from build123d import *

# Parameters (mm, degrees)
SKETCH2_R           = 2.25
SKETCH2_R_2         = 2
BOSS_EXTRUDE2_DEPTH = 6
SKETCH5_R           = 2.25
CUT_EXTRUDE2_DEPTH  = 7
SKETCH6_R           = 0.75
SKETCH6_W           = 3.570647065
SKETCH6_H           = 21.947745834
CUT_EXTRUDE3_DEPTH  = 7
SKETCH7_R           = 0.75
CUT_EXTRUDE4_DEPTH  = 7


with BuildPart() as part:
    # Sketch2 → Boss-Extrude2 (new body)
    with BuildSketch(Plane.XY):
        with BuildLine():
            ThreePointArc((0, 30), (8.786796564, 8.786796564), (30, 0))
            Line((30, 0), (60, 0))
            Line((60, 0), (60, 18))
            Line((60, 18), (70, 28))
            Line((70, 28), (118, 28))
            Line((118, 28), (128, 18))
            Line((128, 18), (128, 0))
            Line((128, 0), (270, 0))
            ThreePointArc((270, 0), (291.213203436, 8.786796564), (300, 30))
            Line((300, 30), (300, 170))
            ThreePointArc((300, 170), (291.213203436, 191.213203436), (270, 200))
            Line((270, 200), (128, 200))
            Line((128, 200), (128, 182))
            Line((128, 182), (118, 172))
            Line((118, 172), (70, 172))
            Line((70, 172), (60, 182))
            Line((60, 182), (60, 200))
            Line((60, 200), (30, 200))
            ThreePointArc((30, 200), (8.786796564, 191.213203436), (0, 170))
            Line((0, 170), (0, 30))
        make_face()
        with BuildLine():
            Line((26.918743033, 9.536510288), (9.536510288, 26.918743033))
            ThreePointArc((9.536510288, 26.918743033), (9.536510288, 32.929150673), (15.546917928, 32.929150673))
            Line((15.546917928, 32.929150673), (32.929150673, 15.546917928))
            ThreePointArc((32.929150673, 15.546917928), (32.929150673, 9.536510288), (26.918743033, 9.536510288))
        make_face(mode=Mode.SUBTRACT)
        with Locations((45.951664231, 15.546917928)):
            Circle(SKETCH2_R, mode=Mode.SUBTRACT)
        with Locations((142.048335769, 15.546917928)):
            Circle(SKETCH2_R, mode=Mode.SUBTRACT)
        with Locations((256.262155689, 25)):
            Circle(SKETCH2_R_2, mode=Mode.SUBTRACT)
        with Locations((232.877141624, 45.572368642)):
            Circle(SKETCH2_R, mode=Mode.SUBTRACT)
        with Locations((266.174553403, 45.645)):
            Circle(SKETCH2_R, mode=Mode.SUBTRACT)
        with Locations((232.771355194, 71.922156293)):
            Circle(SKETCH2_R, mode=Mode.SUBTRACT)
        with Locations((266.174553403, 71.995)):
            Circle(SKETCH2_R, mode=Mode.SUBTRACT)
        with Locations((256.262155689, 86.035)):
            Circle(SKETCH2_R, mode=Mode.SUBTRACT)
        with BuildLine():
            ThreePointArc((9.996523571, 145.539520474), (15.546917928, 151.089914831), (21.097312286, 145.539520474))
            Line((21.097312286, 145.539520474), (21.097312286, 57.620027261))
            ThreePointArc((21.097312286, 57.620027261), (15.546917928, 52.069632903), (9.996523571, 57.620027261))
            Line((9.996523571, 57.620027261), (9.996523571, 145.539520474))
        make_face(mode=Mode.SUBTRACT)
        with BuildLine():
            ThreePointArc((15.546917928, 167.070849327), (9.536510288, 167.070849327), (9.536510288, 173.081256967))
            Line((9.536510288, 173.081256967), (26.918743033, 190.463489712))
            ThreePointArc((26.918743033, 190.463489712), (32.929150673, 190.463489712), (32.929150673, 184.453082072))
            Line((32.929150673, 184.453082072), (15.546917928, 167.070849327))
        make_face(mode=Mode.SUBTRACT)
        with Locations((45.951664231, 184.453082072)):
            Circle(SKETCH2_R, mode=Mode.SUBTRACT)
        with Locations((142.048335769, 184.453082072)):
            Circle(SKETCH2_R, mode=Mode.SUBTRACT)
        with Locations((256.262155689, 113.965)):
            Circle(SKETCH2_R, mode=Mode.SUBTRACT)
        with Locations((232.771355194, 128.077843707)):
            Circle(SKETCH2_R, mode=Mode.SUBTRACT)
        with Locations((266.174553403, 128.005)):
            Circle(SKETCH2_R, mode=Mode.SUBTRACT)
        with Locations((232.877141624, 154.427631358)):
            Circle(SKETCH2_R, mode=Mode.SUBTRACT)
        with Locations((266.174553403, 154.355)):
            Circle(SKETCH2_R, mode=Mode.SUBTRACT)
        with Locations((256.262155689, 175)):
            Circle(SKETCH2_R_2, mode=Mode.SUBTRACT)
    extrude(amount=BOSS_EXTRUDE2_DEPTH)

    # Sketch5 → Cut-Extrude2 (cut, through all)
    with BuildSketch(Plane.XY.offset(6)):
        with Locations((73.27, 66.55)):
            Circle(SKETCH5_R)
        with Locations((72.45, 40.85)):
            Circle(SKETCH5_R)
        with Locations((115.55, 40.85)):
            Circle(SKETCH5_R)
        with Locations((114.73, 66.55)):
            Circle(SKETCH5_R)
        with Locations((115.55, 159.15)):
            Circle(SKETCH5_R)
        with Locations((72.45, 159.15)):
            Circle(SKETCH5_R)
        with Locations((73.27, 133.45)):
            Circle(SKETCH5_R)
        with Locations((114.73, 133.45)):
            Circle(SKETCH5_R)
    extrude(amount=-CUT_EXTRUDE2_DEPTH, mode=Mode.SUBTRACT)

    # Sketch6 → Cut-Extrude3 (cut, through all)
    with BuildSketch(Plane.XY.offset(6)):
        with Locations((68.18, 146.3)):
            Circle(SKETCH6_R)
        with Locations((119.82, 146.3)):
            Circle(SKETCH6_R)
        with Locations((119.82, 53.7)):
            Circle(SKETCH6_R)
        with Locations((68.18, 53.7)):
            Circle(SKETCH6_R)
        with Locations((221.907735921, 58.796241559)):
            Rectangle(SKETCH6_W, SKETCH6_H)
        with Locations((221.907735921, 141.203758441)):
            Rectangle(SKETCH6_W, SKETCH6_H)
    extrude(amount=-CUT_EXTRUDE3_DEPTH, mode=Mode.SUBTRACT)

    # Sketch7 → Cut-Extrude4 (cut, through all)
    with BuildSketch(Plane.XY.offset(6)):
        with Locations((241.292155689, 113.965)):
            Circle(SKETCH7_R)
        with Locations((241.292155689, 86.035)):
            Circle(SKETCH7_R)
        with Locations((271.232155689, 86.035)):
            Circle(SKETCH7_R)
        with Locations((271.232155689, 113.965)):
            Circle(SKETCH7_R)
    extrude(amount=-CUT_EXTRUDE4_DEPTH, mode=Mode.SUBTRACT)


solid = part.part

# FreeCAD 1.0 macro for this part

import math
import FreeCAD as App
import Part
import Sketcher


def add_polygon(sketch, points):
    """Adds a closed chain of lines whose ends are joined by coincident constraints."""
    first, n = sketch.GeometryCount, len(points)
    for a, b in zip(points, points[1:] + points[:1]):
        sketch.addGeometry(Part.LineSegment(App.Vector(*a, 0), App.Vector(*b, 0)), False)
    for i in range(n):
        sketch.addConstraint(Sketcher.Constraint("Coincident", first + i, 2, first + (i + 1) % n, 1))

doc = App.newDocument("Part")
body = doc.addObject("PartDesign::Body", "Body")

# Sketch on XY plane
sketch1 = body.newObject("Sketcher::SketchObject", "Sketch")
sketch1.AttachmentSupport = (doc.getObject("XY_Plane"), [""])
sketch1.MapMode = "FlatFace"
sketch1.addGeometry([
    Part.ArcOfCircle(Part.Circle(App.Vector(30, 30, 0), App.Vector(0, 0, 1), 30), math.radians(180), math.radians(270)),  # 0
    Part.LineSegment(App.Vector(30, 0, 0), App.Vector(60, 0, 0)),  # 1
    Part.LineSegment(App.Vector(60, 0, 0), App.Vector(60, 18, 0)),  # 2
    Part.LineSegment(App.Vector(60, 18, 0), App.Vector(70, 28, 0)),  # 3
    Part.LineSegment(App.Vector(70, 28, 0), App.Vector(118, 28, 0)),  # 4
    Part.LineSegment(App.Vector(118, 28, 0), App.Vector(128, 18, 0)),  # 5
    Part.LineSegment(App.Vector(128, 18, 0), App.Vector(128, 0, 0)),  # 6
    Part.LineSegment(App.Vector(128, 0, 0), App.Vector(270, 0, 0)),  # 7
    Part.ArcOfCircle(Part.Circle(App.Vector(270, 30, 0), App.Vector(0, 0, 1), 30), math.radians(-90), math.radians(0)),  # 8
    Part.LineSegment(App.Vector(300, 30, 0), App.Vector(300, 170, 0)),  # 9
    Part.ArcOfCircle(Part.Circle(App.Vector(270, 170, 0), App.Vector(0, 0, 1), 30), math.radians(0), math.radians(90)),  # 10
    Part.LineSegment(App.Vector(270, 200, 0), App.Vector(128, 200, 0)),  # 11
    Part.LineSegment(App.Vector(128, 200, 0), App.Vector(128, 182, 0)),  # 12
    Part.LineSegment(App.Vector(128, 182, 0), App.Vector(118, 172, 0)),  # 13
    Part.LineSegment(App.Vector(118, 172, 0), App.Vector(70, 172, 0)),  # 14
    Part.LineSegment(App.Vector(70, 172, 0), App.Vector(60, 182, 0)),  # 15
    Part.LineSegment(App.Vector(60, 182, 0), App.Vector(60, 200, 0)),  # 16
    Part.LineSegment(App.Vector(60, 200, 0), App.Vector(30, 200, 0)),  # 17
    Part.ArcOfCircle(Part.Circle(App.Vector(30, 170, 0), App.Vector(0, 0, 1), 30), math.radians(90), math.radians(180)),  # 18
    Part.LineSegment(App.Vector(0, 170, 0), App.Vector(0, 30, 0)),  # 19
    Part.ArcOfCircle(Part.Circle(App.Vector(29.9, 12.5, 0), App.Vector(0, 0, 1), 4.2), math.radians(-135), math.radians(45)),  # 20
    Part.LineSegment(App.Vector(26.9, 9.5, 0), App.Vector(9.5, 26.9, 0)),  # 21
    Part.ArcOfCircle(Part.Circle(App.Vector(12.5, 29.9, 0), App.Vector(0, 0, 1), 4.2), math.radians(45), math.radians(225)),  # 22
    Part.LineSegment(App.Vector(15.5, 32.9, 0), App.Vector(32.9, 15.5, 0)),  # 23
    Part.Circle(App.Vector(46, 15.5, 0), App.Vector(0, 0, 1), 2.2),  # 24
    Part.Circle(App.Vector(142, 15.5, 0), App.Vector(0, 0, 1), 2.2),  # 25
    Part.Circle(App.Vector(256.3, 25, 0), App.Vector(0, 0, 1), 2),  # 26
    Part.Circle(App.Vector(232.9, 45.6, 0), App.Vector(0, 0, 1), 2.2),  # 27
    Part.Circle(App.Vector(266.2, 45.6, 0), App.Vector(0, 0, 1), 2.2),  # 28
    Part.Circle(App.Vector(232.8, 71.9, 0), App.Vector(0, 0, 1), 2.2),  # 29
    Part.Circle(App.Vector(266.2, 72, 0), App.Vector(0, 0, 1), 2.2),  # 30
    Part.Circle(App.Vector(256.3, 86, 0), App.Vector(0, 0, 1), 2.2),  # 31
    Part.LineSegment(App.Vector(10, 57.6, 0), App.Vector(10, 145.5, 0)),  # 32
    Part.ArcOfCircle(Part.Circle(App.Vector(15.5, 145.5, 0), App.Vector(0, 0, 1), 5.6), math.radians(0), math.radians(180)),  # 33
    Part.LineSegment(App.Vector(21.1, 145.5, 0), App.Vector(21.1, 57.6, 0)),  # 34
    Part.ArcOfCircle(Part.Circle(App.Vector(15.5, 57.6, 0), App.Vector(0, 0, 1), 5.6), math.radians(180), math.radians(360)),  # 35
    Part.LineSegment(App.Vector(32.9, 184.5, 0), App.Vector(15.5, 167.1, 0)),  # 36
    Part.ArcOfCircle(Part.Circle(App.Vector(12.5, 170.1, 0), App.Vector(0, 0, 1), 4.2), math.radians(135), math.radians(315)),  # 37
    Part.LineSegment(App.Vector(9.5, 173.1, 0), App.Vector(26.9, 190.5, 0)),  # 38
    Part.ArcOfCircle(Part.Circle(App.Vector(29.9, 187.5, 0), App.Vector(0, 0, 1), 4.2), math.radians(-45), math.radians(135)),  # 39
    Part.Circle(App.Vector(46, 184.5, 0), App.Vector(0, 0, 1), 2.2),  # 40
    Part.Circle(App.Vector(256.3, 114, 0), App.Vector(0, 0, 1), 2.2),  # 41
    Part.Circle(App.Vector(232.8, 128.1, 0), App.Vector(0, 0, 1), 2.2),  # 42
    Part.Circle(App.Vector(266.2, 128, 0), App.Vector(0, 0, 1), 2.2),  # 43
    Part.Circle(App.Vector(142, 184.5, 0), App.Vector(0, 0, 1), 2.2),  # 44
    Part.Circle(App.Vector(232.9, 154.4, 0), App.Vector(0, 0, 1), 2.2),  # 45
    Part.Circle(App.Vector(266.2, 154.4, 0), App.Vector(0, 0, 1), 2.2),  # 46
    Part.Circle(App.Vector(256.3, 175, 0), App.Vector(0, 0, 1), 2),  # 47
], False)
sketch1.addConstraint([
    Sketcher.Constraint("Tangent", 0, 2, 1, 1),
    Sketcher.Constraint("Coincident", 1, 2, 2, 1),
    Sketcher.Constraint("Coincident", 2, 2, 3, 1),
    Sketcher.Constraint("Coincident", 3, 2, 4, 1),
    Sketcher.Constraint("Coincident", 4, 2, 5, 1),
    Sketcher.Constraint("Coincident", 5, 2, 6, 1),
    Sketcher.Constraint("Coincident", 6, 2, 7, 1),
    Sketcher.Constraint("Tangent", 7, 2, 8, 1),
    Sketcher.Constraint("Tangent", 8, 2, 9, 1),
    Sketcher.Constraint("Tangent", 9, 2, 10, 1),
    Sketcher.Constraint("Tangent", 10, 2, 11, 1),
    Sketcher.Constraint("Coincident", 11, 2, 12, 1),
    Sketcher.Constraint("Coincident", 12, 2, 13, 1),
    Sketcher.Constraint("Coincident", 13, 2, 14, 1),
    Sketcher.Constraint("Coincident", 14, 2, 15, 1),
    Sketcher.Constraint("Coincident", 15, 2, 16, 1),
    Sketcher.Constraint("Coincident", 16, 2, 17, 1),
    Sketcher.Constraint("Tangent", 17, 2, 18, 1),
    Sketcher.Constraint("Tangent", 18, 2, 19, 1),
    Sketcher.Constraint("Tangent", 19, 2, 0, 1),
    Sketcher.Constraint("Tangent", 20, 1, 21, 1),
    Sketcher.Constraint("Tangent", 21, 2, 22, 2),
    Sketcher.Constraint("Tangent", 22, 1, 23, 1),
    Sketcher.Constraint("Tangent", 23, 2, 20, 2),
    Sketcher.Constraint("Tangent", 32, 2, 33, 2),
    Sketcher.Constraint("Tangent", 33, 1, 34, 1),
    Sketcher.Constraint("Tangent", 34, 2, 35, 2),
    Sketcher.Constraint("Tangent", 35, 1, 32, 1),
    Sketcher.Constraint("Tangent", 36, 2, 37, 2),
    Sketcher.Constraint("Tangent", 37, 1, 38, 1),
    Sketcher.Constraint("Tangent", 38, 2, 39, 2),
    Sketcher.Constraint("Tangent", 39, 1, 36, 1),
    Sketcher.Constraint("Horizontal", 1),
    Sketcher.Constraint("Vertical", 2),
    Sketcher.Constraint("Horizontal", 4),
    Sketcher.Constraint("Vertical", 6),
    Sketcher.Constraint("Horizontal", 7),
    Sketcher.Constraint("Vertical", 9),
    Sketcher.Constraint("Horizontal", 11),
    Sketcher.Constraint("Vertical", 12),
    Sketcher.Constraint("Horizontal", 14),
    Sketcher.Constraint("Vertical", 16),
    Sketcher.Constraint("Horizontal", 17),
    Sketcher.Constraint("Vertical", 19),
    Sketcher.Constraint("Vertical", 32),
    Sketcher.Constraint("Vertical", 34),
    Sketcher.Constraint("Equal", 0, 8),
    Sketcher.Constraint("Equal", 8, 10),
    Sketcher.Constraint("Equal", 10, 18),
    Sketcher.Constraint("Equal", 20, 22),
    Sketcher.Constraint("Equal", 24, 25),
    Sketcher.Constraint("Equal", 25, 27),
    Sketcher.Constraint("Equal", 27, 28),
    Sketcher.Constraint("Equal", 28, 29),
    Sketcher.Constraint("Equal", 29, 30),
    Sketcher.Constraint("Equal", 30, 31),
    Sketcher.Constraint("Equal", 22, 37),
    Sketcher.Constraint("Equal", 37, 39),
    Sketcher.Constraint("Equal", 31, 40),
    Sketcher.Constraint("Equal", 40, 41),
    Sketcher.Constraint("Equal", 41, 42),
    Sketcher.Constraint("Equal", 42, 43),
    Sketcher.Constraint("Equal", 43, 44),
    Sketcher.Constraint("Equal", 44, 45),
    Sketcher.Constraint("Equal", 45, 46),
    Sketcher.Constraint("Equal", 26, 47),
    Sketcher.Constraint("PointOnObject", 0, 2, -1),
    Sketcher.Constraint("PointOnObject", 6, 2, -1),
    Sketcher.Constraint("PointOnObject", 18, 2, -2),
    Sketcher.Constraint("Perpendicular", 3, 5),
    Sketcher.Constraint("Perpendicular", 5, 13),
    Sketcher.Constraint("Perpendicular", 13, 15),
    Sketcher.Constraint("Parallel", 15, 21),
    Sketcher.Constraint("Perpendicular", 23, 36),
    Sketcher.Constraint("Horizontal", 10, 3, 18, 3),
    Sketcher.Constraint("Horizontal", 24, 3, 25, 3),
    Sketcher.Constraint("Horizontal", 40, 3, 44, 3),
    Sketcher.Constraint("Horizontal", 2, 2, 5, 2),
    Sketcher.Constraint("Horizontal", 12, 2, 15, 2),
    Sketcher.Constraint("Horizontal", 25, 3, 23, 2),
    Sketcher.Constraint("Horizontal", 44, 3, 39, 1),
    Sketcher.Constraint("Vertical", 28, 3, 30, 3),
    Sketcher.Constraint("Vertical", 26, 3, 31, 3),
    Sketcher.Constraint("Vertical", 22, 3, 37, 3),
    Sketcher.Constraint("Vertical", 20, 3, 39, 3),
    Sketcher.Constraint("Vertical", 24, 3, 40, 3),
    Sketcher.Constraint("Vertical", 31, 3, 41, 3),
    Sketcher.Constraint("Vertical", 29, 3, 42, 3),
    Sketcher.Constraint("Vertical", 30, 3, 43, 3),
    Sketcher.Constraint("Vertical", 25, 3, 44, 3),
    Sketcher.Constraint("Vertical", 27, 3, 45, 3),
    Sketcher.Constraint("Vertical", 43, 3, 46, 3),
    Sketcher.Constraint("Vertical", 41, 3, 47, 3),
    Sketcher.Constraint("Vertical", 6, 2, 11, 2),
    Sketcher.Constraint("Vertical", 4, 2, 13, 2),
    Sketcher.Constraint("Vertical", 3, 2, 14, 2),
    Sketcher.Constraint("Vertical", 2, 2, 15, 2),
    Sketcher.Constraint("Vertical", 35, 3, 22, 1),
    Sketcher.Constraint("Equal", 6, 12),
    Sketcher.Constraint("Diameter", 26, 4.0),
    Sketcher.Constraint("Radius", 0, 30.0),
    Sketcher.Constraint("Diameter", 24, 4.5),
    Sketcher.Constraint("DistanceX", 1, 1, 1, 2, 30.0),
    Sketcher.Constraint("DistanceX", 4, 1, 4, 2, 48.0),
    Sketcher.Constraint("DistanceX", 7, 1, 7, 2, 142.0),
    Sketcher.Constraint("DistanceY", 2, 1, 2, 2, 18.0),
    Sketcher.Constraint("DistanceY", 9, 1, 9, 2, 140.0),
    Sketcher.Constraint("Radius", 20, 4.25),
    Sketcher.Constraint("DistanceX", -1, 1, 8, 3, 270.0),
    Sketcher.Constraint("DistanceY", -1, 1, 26, 3, 25.0),
    Sketcher.Constraint("DistanceY", -1, 1, 47, 3, 175.0),
    Sketcher.Constraint("DistanceY", 28, 3, 30, 3, 26.35),
    Sketcher.Constraint("DistanceY", 30, 3, 31, 3, 14.04),
    Sketcher.Constraint("DistanceY", 31, 3, 41, 3, 27.93),
    Sketcher.Constraint("DistanceY", 41, 3, 43, 3, 14.04),
    Sketcher.Constraint("DistanceY", 43, 3, 46, 3, 26.35),
    Sketcher.Constraint("DistanceY", -1, 1, 28, 3, 45.645),
    Sketcher.Constraint("Radius", 33, 5.550394),
    Sketcher.Constraint("DistanceX", 29, 3, 28, 3, 33.403198),
    Sketcher.Constraint("DistanceX", 29, 3, 26, 3, 23.4908),
    Sketcher.Constraint("Distance", 21, 24.582189),
    Sketcher.Constraint("DistanceY", 32, 1, 32, 2, 87.919493),
    Sketcher.Constraint("DistanceX", -1, 1, 27, 3, 232.877142),
    Sketcher.Constraint("DistanceY", -1, 1, 27, 3, 45.572369),
    Sketcher.Constraint("DistanceY", -1, 1, 33, 3, 145.53952),
    Sketcher.Constraint("DistanceY", -1, 1, 45, 3, 154.427631),
    Sketcher.Constraint("DistanceY", -1, 1, 20, 1, 9.53651),
    Sketcher.Constraint("DistanceX", -1, 1, 21, 2, 9.53651),
    Sketcher.Constraint("DistanceY", -1, 1, 36, 2, 167.070849),
    Sketcher.Constraint("DistanceX", 22, 3, 24, 3, 33.40995),
    Sketcher.Constraint("DistanceX", 24, 3, 25, 3, 96.096672),
    Sketcher.Constraint("DistanceX", 25, 3, 26, 3, 114.21382),
    Sketcher.Constraint("DistanceY", 42, 3, 44, 3, 56.375238),
    Sketcher.Constraint("DistanceY", -1, 1, 29, 3, 71.922156),
])
pad1 = body.newObject("PartDesign::Pad", "Pad")
pad1.Profile = sketch1
pad1.Length = 6

# Sketch on XY plane
sketch2 = body.newObject("Sketcher::SketchObject", "Sketch001")
sketch2.AttachmentSupport = (doc.getObject("XY_Plane"), [""])
sketch2.MapMode = "FlatFace"
sketch2.AttachmentOffset = App.Placement(App.Vector(0, 0, 6), App.Rotation())
sketch2.addGeometry([
    Part.Circle(App.Vector(73.3, 66.5, 0), App.Vector(0, 0, 1), 2.2),  # 0
    Part.Circle(App.Vector(72.5, 40.9, 0), App.Vector(0, 0, 1), 2.2),  # 1
    Part.Circle(App.Vector(115.5, 40.9, 0), App.Vector(0, 0, 1), 2.2),  # 2
    Part.Circle(App.Vector(114.7, 66.5, 0), App.Vector(0, 0, 1), 2.2),  # 3
    Part.Circle(App.Vector(115.5, 159.2, 0), App.Vector(0, 0, 1), 2.2),  # 4
    Part.Circle(App.Vector(72.5, 159.2, 0), App.Vector(0, 0, 1), 2.2),  # 5
    Part.Circle(App.Vector(73.3, 133.4, 0), App.Vector(0, 0, 1), 2.2),  # 6
    Part.Circle(App.Vector(114.7, 133.4, 0), App.Vector(0, 0, 1), 2.2),  # 7
], False)
sketch2.addConstraint([
    Sketcher.Constraint("Equal", 0, 1),
    Sketcher.Constraint("Equal", 1, 2),
    Sketcher.Constraint("Equal", 2, 3),
    Sketcher.Constraint("Equal", 3, 4),
    Sketcher.Constraint("Equal", 4, 5),
    Sketcher.Constraint("Equal", 5, 6),
    Sketcher.Constraint("Equal", 6, 7),
    Sketcher.Constraint("Horizontal", 1, 3, 2, 3),
    Sketcher.Constraint("Horizontal", 0, 3, 3, 3),
    Sketcher.Constraint("Horizontal", 4, 3, 5, 3),
    Sketcher.Constraint("Horizontal", 6, 3, 7, 3),
    Sketcher.Constraint("Vertical", 2, 3, 4, 3),
    Sketcher.Constraint("Vertical", 1, 3, 5, 3),
    Sketcher.Constraint("Vertical", 0, 3, 6, 3),
    Sketcher.Constraint("Vertical", 3, 3, 7, 3),
    Sketcher.Constraint("Diameter", 0, 4.5),
    Sketcher.Constraint("DistanceY", 1, 3, 0, 3, 25.7),
    Sketcher.Constraint("DistanceX", 1, 3, 2, 3, 43.1),
    Sketcher.Constraint("DistanceY", 3, 3, 4, 3, 92.6),
    Sketcher.Constraint("DistanceY", 6, 3, 5, 3, 25.7),
    Sketcher.Constraint("DistanceX", -1, 1, 0, 3, 73.27),
    Sketcher.Constraint("DistanceY", -1, 1, 0, 3, 66.55),
    Sketcher.Constraint("DistanceX", -1, 1, 1, 3, 72.45),
    Sketcher.Constraint("DistanceX", -1, 1, 3, 3, 114.73),
])
pocket1 = body.newObject("PartDesign::Pocket", "Pocket")
pocket1.Profile = sketch2
pocket1.Type = "ThroughAll"

# Sketch on XY plane
sketch3 = body.newObject("Sketcher::SketchObject", "Sketch002")
sketch3.AttachmentSupport = (doc.getObject("XY_Plane"), [""])
sketch3.MapMode = "FlatFace"
sketch3.AttachmentOffset = App.Placement(App.Vector(0, 0, 6), App.Rotation())
sketch3.addGeometry(Part.Circle(App.Vector(68.2, 146.3, 0), App.Vector(0, 0, 1), 0.8), False)  # 0
sketch3.addGeometry(Part.Circle(App.Vector(119.8, 146.3, 0), App.Vector(0, 0, 1), 0.8), False)  # 1
sketch3.addGeometry(Part.Circle(App.Vector(119.8, 53.7, 0), App.Vector(0, 0, 1), 0.8), False)  # 2
sketch3.addGeometry(Part.Circle(App.Vector(68.2, 53.7, 0), App.Vector(0, 0, 1), 0.8), False)  # 3
add_polygon(sketch3, [(220.1, 69.8), (220.1, 47.8), (223.7, 47.8), (223.7, 69.8)])  # lines 4-7
add_polygon(sketch3, [(220.1, 152.2), (220.1, 130.2), (223.7, 130.2), (223.7, 152.2)])  # lines 8-11
sketch3.addConstraint([
    Sketcher.Constraint("Vertical", 4),
    Sketcher.Constraint("Horizontal", 5),
    Sketcher.Constraint("Vertical", 6),
    Sketcher.Constraint("Horizontal", 7),
    Sketcher.Constraint("Vertical", 8),
    Sketcher.Constraint("Horizontal", 9),
    Sketcher.Constraint("Vertical", 10),
    Sketcher.Constraint("Horizontal", 11),
    Sketcher.Constraint("Equal", 0, 1),
    Sketcher.Constraint("Equal", 1, 2),
    Sketcher.Constraint("Equal", 2, 3),
    Sketcher.Constraint("Horizontal", 0, 3, 1, 3),
    Sketcher.Constraint("Horizontal", 2, 3, 3, 3),
    Sketcher.Constraint("Vertical", 1, 3, 2, 3),
    Sketcher.Constraint("Vertical", 0, 3, 3, 3),
    Sketcher.Constraint("Vertical", 7, 2, 8, 2),
    Sketcher.Constraint("Vertical", 6, 2, 9, 2),
    Sketcher.Constraint("Equal", 6, 8),
    Sketcher.Constraint("Diameter", 0, 1.5),
    Sketcher.Constraint("DistanceY", -1, 1, 0, 3, 146.3),
    Sketcher.Constraint("DistanceY", -1, 1, 2, 3, 53.7),
    Sketcher.Constraint("DistanceX", -1, 1, 0, 3, 68.18),
    Sketcher.Constraint("DistanceX", -1, 1, 1, 3, 119.82),
    Sketcher.Constraint("DistanceX", 5, 1, 5, 2, 3.570647),
    Sketcher.Constraint("DistanceY", 4, 2, 4, 1, 21.947746),
    Sketcher.Constraint("DistanceY", -1, 1, 4, 2, 47.822369),
    Sketcher.Constraint("DistanceX", -1, 1, 5, 2, 223.693059),
    Sketcher.Constraint("DistanceY", -1, 1, 10, 2, 152.177631),
])
pocket2 = body.newObject("PartDesign::Pocket", "Pocket001")
pocket2.Profile = sketch3
pocket2.Type = "ThroughAll"

# Sketch on XY plane
sketch4 = body.newObject("Sketcher::SketchObject", "Sketch003")
sketch4.AttachmentSupport = (doc.getObject("XY_Plane"), [""])
sketch4.MapMode = "FlatFace"
sketch4.AttachmentOffset = App.Placement(App.Vector(0, 0, 6), App.Rotation())
sketch4.addGeometry([
    Part.Circle(App.Vector(241.3, 114, 0), App.Vector(0, 0, 1), 0.8),
    Part.Circle(App.Vector(241.3, 86, 0), App.Vector(0, 0, 1), 0.8),
    Part.Circle(App.Vector(271.2, 86, 0), App.Vector(0, 0, 1), 0.8),
    Part.Circle(App.Vector(271.2, 114, 0), App.Vector(0, 0, 1), 0.8),
], False)
sketch4.addConstraint([
    Sketcher.Constraint("Equal", 0, 1),
    Sketcher.Constraint("Equal", 1, 2),
    Sketcher.Constraint("Equal", 2, 3),
    Sketcher.Constraint("Horizontal", 1, 3, 2, 3),
    Sketcher.Constraint("Horizontal", 0, 3, 3, 3),
    Sketcher.Constraint("Vertical", 0, 3, 1, 3),
    Sketcher.Constraint("Vertical", 2, 3, 3, 3),
    Sketcher.Constraint("Diameter", 0, 1.5),
    Sketcher.Constraint("DistanceY", 1, 3, 0, 3, 27.93),
    Sketcher.Constraint("DistanceX", 1, 3, 2, 3, 29.94),
    Sketcher.Constraint("DistanceY", -1, 1, 0, 3, 113.965),
    Sketcher.Constraint("DistanceX", -1, 1, 0, 3, 241.292156),
])
pocket3 = body.newObject("PartDesign::Pocket", "Pocket002")
pocket3.Profile = sketch4
pocket3.Type = "ThroughAll"

doc.recompute()
